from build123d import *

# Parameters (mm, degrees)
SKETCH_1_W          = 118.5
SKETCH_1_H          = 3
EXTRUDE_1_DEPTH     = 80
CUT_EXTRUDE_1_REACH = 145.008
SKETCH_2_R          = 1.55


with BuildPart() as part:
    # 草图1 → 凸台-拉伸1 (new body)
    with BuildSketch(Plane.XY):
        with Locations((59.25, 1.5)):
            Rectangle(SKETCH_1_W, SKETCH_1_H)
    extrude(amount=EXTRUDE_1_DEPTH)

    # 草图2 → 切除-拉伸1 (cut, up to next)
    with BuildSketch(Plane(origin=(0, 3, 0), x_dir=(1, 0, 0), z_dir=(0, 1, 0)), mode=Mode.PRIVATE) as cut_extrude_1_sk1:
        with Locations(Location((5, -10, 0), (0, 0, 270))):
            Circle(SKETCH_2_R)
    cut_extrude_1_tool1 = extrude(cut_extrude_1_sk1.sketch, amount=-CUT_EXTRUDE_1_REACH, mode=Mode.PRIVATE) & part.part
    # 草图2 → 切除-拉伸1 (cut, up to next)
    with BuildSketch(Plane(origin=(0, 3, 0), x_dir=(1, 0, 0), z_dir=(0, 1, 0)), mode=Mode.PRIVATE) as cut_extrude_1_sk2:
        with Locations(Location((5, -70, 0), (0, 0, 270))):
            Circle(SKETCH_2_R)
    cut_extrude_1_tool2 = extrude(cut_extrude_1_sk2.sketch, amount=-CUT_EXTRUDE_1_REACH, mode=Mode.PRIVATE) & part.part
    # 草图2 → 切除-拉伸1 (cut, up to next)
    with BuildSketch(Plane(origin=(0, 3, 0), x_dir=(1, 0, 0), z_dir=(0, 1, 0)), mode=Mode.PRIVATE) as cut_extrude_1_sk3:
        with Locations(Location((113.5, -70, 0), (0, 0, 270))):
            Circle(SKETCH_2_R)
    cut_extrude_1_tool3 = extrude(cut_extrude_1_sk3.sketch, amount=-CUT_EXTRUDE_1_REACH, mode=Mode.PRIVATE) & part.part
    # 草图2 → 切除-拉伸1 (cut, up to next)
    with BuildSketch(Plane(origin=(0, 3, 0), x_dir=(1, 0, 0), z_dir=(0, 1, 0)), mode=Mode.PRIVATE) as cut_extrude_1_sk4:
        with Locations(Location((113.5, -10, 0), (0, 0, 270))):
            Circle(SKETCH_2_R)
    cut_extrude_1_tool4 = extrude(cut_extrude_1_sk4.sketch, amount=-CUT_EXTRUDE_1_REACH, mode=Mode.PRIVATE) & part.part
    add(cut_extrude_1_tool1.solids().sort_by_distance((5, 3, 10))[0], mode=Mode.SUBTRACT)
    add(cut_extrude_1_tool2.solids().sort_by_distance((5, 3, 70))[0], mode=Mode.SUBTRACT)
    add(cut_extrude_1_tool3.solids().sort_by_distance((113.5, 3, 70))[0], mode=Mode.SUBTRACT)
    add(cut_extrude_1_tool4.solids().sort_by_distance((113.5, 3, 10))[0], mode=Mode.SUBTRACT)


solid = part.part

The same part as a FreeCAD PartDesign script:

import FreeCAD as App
import Part
import Sketcher

V = App.Vector
Q = App.Units.Quantity


def add_polygon(sketch, points):
    """Adds a closed chain of lines whose ends are joined by coincident constraints."""
    first, n = sketch.GeometryCount, len(points)
    for a, b in zip(points, points[1:] + points[:1]):
        sketch.addGeometry(Part.LineSegment(App.Vector(*a, 0), App.Vector(*b, 0)), False)
    for i in range(n):
        sketch.addConstraint(Sketcher.Constraint("Coincident", first + i, 2, first + (i + 1) % n, 1))

doc = App.newDocument("Part")
body = doc.addObject("PartDesign::Body", "Body")

sketch1 = body.newObject("Sketcher::SketchObject", "Sketch")
sketch1.AttachmentSupport = (doc.getObject("XY_Plane"), [""])
sketch1.MapMode = "FlatFace"
add_polygon(sketch1, [(0, 3), (0, 0), (118.5, 0), (118.5, 3)])
sketch1.addConstraint([
    Sketcher.Constraint("Vertical", 0),
    Sketcher.Constraint("Horizontal", 1),
    Sketcher.Constraint("Vertical", 2),
    Sketcher.Constraint("Horizontal", 3),
    Sketcher.Constraint("Coincident", 0, 2, -1, 1),
    Sketcher.Constraint("DistanceY", 0, 2, 0, 1, Q("3 mm")),
    Sketcher.Constraint("DistanceX", 1, 1, 1, 2, Q("118.5 mm")),
])
pad1 = body.newObject("PartDesign::Pad", "Pad")
pad1.Profile = sketch1
pad1.Length = 80

sketch2 = body.newObject("Sketcher::SketchObject", "Sketch001")
sketch2.AttachmentSupport = (doc.getObject("XZ_Plane"), [""])
sketch2.MapMode = "FlatFace"
sketch2.AttachmentOffset = App.Placement(V(0, 0, -3), App.Rotation())
sketch2.addGeometry(Part.Circle(V(5, 10, 0), V(0, 0, 1), 1.6), False)
sketch2.addConstraint([
    Sketcher.Constraint("Diameter", 0, Q("3.1 mm")),
    Sketcher.Constraint("DistanceX", -1, 1, 0, 3, Q("5 mm")),
    Sketcher.Constraint("DistanceY", -1, 1, 0, 3, Q("10 mm")),
])
pocket1 = body.newObject("PartDesign::Pocket", "Pocket")
pocket1.Profile = sketch2
pocket1.Type = "UpToFirst"
pocket1.Reversed = True

sketch3 = body.newObject("Sketcher::SketchObject", "Sketch002")
sketch3.AttachmentSupport = (doc.getObject("XZ_Plane"), [""])
sketch3.MapMode = "FlatFace"
sketch3.AttachmentOffset = App.Placement(V(0, 0, -3), App.Rotation())
sketch3.addGeometry(Part.Circle(V(5, 70, 0), V(0, 0, 1), 1.6), False)
sketch3.addConstraint([
    Sketcher.Constraint("Diameter", 0, Q("3.1 mm")),
    Sketcher.Constraint("DistanceX", -1, 1, 0, 3, Q("5 mm")),
    Sketcher.Constraint("DistanceY", -1, 1, 0, 3, Q("70 mm")),
])
pocket2 = body.newObject("PartDesign::Pocket", "Pocket001")
pocket2.Profile = sketch3
pocket2.Type = "UpToFirst"
pocket2.Reversed = True

sketch4 = body.newObject("Sketcher::SketchObject", "Sketch003")
sketch4.AttachmentSupport = (doc.getObject("XZ_Plane"), [""])
sketch4.MapMode = "FlatFace"
sketch4.AttachmentOffset = App.Placement(V(0, 0, -3), App.Rotation())
sketch4.addGeometry(Part.Circle(V(113.5, 70, 0), V(0, 0, 1), 1.6), False)
sketch4.addConstraint([
    Sketcher.Constraint("Diameter", 0, Q("3.1 mm")),
    Sketcher.Constraint("DistanceY", -1, 1, 0, 3, Q("70 mm")),
    Sketcher.Constraint("DistanceX", -1, 1, 0, 3, Q("113.5 mm")),
])
pocket3 = body.newObject("PartDesign::Pocket", "Pocket002")
pocket3.Profile = sketch4
pocket3.Type = "UpToFirst"
pocket3.Reversed = True

sketch5 = body.newObject("Sketcher::SketchObject", "Sketch004")
sketch5.AttachmentSupport = (doc.getObject("XZ_Plane"), [""])
sketch5.MapMode = "FlatFace"
sketch5.AttachmentOffset = App.Placement(V(0, 0, -3), App.Rotation())
sketch5.addGeometry(Part.Circle(V(113.5, 10, 0), V(0, 0, 1), 1.6), False)
sketch5.addConstraint([
    Sketcher.Constraint("Diameter", 0, Q("3.1 mm")),
    Sketcher.Constraint("DistanceY", -1, 1, 0, 3, Q("10 mm")),
    Sketcher.Constraint("DistanceX", -1, 1, 0, 3, Q("113.5 mm")),
])
pocket4 = body.newObject("PartDesign::Pocket", "Pocket003")
pocket4.Profile = sketch5
pocket4.Type = "UpToFirst"
pocket4.Reversed = True

doc.recompute()
